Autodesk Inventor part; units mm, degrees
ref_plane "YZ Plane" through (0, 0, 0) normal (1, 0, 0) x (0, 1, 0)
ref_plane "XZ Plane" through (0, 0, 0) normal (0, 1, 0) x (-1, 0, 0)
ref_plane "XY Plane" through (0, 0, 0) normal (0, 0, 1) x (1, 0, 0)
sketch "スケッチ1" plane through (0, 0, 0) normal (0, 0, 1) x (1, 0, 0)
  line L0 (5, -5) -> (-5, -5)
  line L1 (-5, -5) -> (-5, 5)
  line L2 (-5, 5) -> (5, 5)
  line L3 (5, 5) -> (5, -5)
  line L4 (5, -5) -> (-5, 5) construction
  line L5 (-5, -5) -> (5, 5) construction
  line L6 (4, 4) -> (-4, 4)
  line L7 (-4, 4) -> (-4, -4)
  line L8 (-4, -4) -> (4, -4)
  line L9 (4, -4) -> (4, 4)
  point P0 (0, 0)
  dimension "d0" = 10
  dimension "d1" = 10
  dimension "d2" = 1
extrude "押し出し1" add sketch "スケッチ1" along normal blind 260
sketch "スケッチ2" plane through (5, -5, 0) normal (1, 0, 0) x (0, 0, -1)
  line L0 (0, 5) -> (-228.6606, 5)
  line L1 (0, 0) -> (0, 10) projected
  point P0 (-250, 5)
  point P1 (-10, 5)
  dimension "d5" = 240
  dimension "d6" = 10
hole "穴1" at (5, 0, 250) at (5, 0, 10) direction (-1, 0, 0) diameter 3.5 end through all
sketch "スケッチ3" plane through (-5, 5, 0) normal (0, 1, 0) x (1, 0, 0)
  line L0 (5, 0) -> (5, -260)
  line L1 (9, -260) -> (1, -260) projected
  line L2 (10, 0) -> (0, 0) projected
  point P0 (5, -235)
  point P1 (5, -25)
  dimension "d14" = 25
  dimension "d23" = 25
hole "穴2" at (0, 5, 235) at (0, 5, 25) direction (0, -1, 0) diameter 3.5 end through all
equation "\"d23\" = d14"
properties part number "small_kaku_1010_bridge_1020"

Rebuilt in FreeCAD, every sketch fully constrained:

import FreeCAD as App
import Part
import Sketcher
Q = App.Units.Quantity


def add_polygon(sketch, points):
    """Adds a closed chain of lines whose ends are joined by coincident constraints."""
    first, n = sketch.GeometryCount, len(points)
    for a, b in zip(points, points[1:] + points[:1]):
        sketch.addGeometry(Part.LineSegment(App.Vector(*a, 0), App.Vector(*b, 0)), False)
    for i in range(n):
        sketch.addConstraint(Sketcher.Constraint("Coincident", first + i, 2, first + (i + 1) % n, 1))

doc = App.newDocument("Part")
params = doc.addObject("Spreadsheet::Sheet", "Params")
for row, (alias, value) in enumerate([
    ("sketch1_width", "10 mm"),
    ("pad1_length", "260 mm"),
    ("sketch2_diameter", "3.5 mm"),
    ("hole_diameter", "3.5 mm"),
    ("sketch3_diameter", "3.5 mm"),
    ("hole2_diameter", "3.5 mm"),
], start=1):
    params.set(f"A{row}", alias)
    params.set(f"B{row}", "=" + value)
    params.setAlias(f"B{row}", alias)

body = doc.addObject("PartDesign::Body", "Body")

sketch1 = body.newObject("Sketcher::SketchObject", "Sketch")
sketch1.AttachmentSupport = (doc.getObject("XY_Plane"), [""])
sketch1.MapMode = "FlatFace"
add_polygon(sketch1, [(-5, -5), (5, -5), (5, 5), (-5, 5)])
add_polygon(sketch1, [(-4, 4), (4, 4), (4, -4), (-4, -4)])
sketch1.addConstraint([
    Sketcher.Constraint("Horizontal", 0),
    Sketcher.Constraint("Vertical", 1),
    Sketcher.Constraint("Horizontal", 2),
    Sketcher.Constraint("Vertical", 3),
    Sketcher.Constraint("Horizontal", 4),
    Sketcher.Constraint("Vertical", 5),
    Sketcher.Constraint("Horizontal", 6),
    Sketcher.Constraint("Vertical", 7),
    Sketcher.Constraint("Symmetric", 0, 2, 2, 2, -1, 1),
    Sketcher.Constraint("Symmetric", 4, 2, 6, 2, -1, 1),
    Sketcher.Constraint("Equal", 2, 1),
    Sketcher.Constraint("Equal", 6, 5),
    Sketcher.Constraint("DistanceX", 0, 1, 0, 2, Q("10 mm")),
    Sketcher.Constraint("DistanceX", 4, 2, 1, 2, Q("1 mm")),
])
sketch1.setExpression("Constraints[20]", "Params.sketch1_width")
pad1 = body.newObject("PartDesign::Pad", "Pad")
pad1.Profile = sketch1
pad1.setExpression("Length", "Params.pad1_length")

sketch2 = body.newObject("Sketcher::SketchObject", "Sketch001")
sketch2.AttachmentSupport = (doc.getObject("YZ_Plane"), [""])
sketch2.MapMode = "FlatFace"
sketch2.AttachmentOffset = App.Placement(App.Vector(0, 0, 5), App.Rotation())
sketch2.addGeometry([
    Part.Circle(App.Vector(0, 250, 0), App.Vector(0, 0, 1), 1.8),
    Part.Circle(App.Vector(0, 10, 0), App.Vector(0, 0, 1), 1.8),
], False)
sketch2.addConstraint([
    Sketcher.Constraint("Equal", 0, 1),
    Sketcher.Constraint("PointOnObject", 0, 3, -2),
    Sketcher.Constraint("PointOnObject", 1, 3, -2),
    Sketcher.Constraint("Diameter", 0, Q("3.5 mm")),
    Sketcher.Constraint("DistanceY", -1, 1, 0, 3, Q("250 mm")),
    Sketcher.Constraint("DistanceY", -1, 1, 1, 3, Q("10 mm")),
])
sketch2.setExpression("Constraints[3]", "Params.sketch2_diameter")
doc.recompute()
hole = body.newObject("PartDesign::Hole", "Hole")
hole.Profile = sketch2
hole.ThreadType = "None"
hole.setExpression("Diameter", "Params.hole_diameter")
hole.DepthType = "ThroughAll"

sketch3 = body.newObject("Sketcher::SketchObject", "Sketch002")
sketch3.AttachmentSupport = (doc.getObject("XZ_Plane"), [""])
sketch3.MapMode = "FlatFace"
sketch3.AttachmentOffset = App.Placement(App.Vector(0, 0, -5), App.Rotation())
sketch3.addGeometry([
    Part.Circle(App.Vector(0, 235, 0), App.Vector(0, 0, 1), 1.8),
    Part.Circle(App.Vector(0, 25, 0), App.Vector(0, 0, 1), 1.8),
], False)
sketch3.addConstraint([
    Sketcher.Constraint("Equal", 0, 1),
    Sketcher.Constraint("PointOnObject", 0, 3, -2),
    Sketcher.Constraint("PointOnObject", 1, 3, -2),
    Sketcher.Constraint("Diameter", 0, Q("3.5 mm")),
    Sketcher.Constraint("DistanceY", -1, 1, 0, 3, Q("235 mm")),
    Sketcher.Constraint("DistanceY", -1, 1, 1, 3, Q("25 mm")),
])
sketch3.setExpression("Constraints[3]", "Params.sketch3_diameter")
doc.recompute()
hole2 = body.newObject("PartDesign::Hole", "Hole001")
hole2.Profile = sketch3
hole2.ThreadType = "None"
hole2.setExpression("Diameter", "Params.hole2_diameter")
hole2.DepthType = "ThroughAll"
hole2.Reversed = True

doc.recompute()
